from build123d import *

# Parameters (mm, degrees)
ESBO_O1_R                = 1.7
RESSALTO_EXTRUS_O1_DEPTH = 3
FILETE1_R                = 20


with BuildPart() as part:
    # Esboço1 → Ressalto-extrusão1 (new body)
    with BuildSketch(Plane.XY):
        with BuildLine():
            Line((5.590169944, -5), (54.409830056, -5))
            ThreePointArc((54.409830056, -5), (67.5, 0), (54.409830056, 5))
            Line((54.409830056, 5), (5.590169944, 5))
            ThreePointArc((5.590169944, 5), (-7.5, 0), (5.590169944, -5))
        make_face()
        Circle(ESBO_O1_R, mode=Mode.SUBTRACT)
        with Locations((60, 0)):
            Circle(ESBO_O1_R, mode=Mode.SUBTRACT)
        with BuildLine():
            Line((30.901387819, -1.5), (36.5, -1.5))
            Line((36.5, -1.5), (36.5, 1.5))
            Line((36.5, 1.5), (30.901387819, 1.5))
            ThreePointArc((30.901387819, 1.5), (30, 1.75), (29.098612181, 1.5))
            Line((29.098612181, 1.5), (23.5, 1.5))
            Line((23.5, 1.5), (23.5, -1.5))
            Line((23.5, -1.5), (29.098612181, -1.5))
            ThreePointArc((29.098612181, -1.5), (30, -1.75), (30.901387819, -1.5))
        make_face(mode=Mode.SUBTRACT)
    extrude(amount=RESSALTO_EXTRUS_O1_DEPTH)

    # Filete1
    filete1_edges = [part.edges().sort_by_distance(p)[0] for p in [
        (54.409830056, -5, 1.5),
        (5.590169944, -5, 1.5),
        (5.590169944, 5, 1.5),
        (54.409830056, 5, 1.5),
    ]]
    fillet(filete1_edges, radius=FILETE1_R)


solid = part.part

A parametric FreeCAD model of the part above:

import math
import FreeCAD as App
import Part
import Sketcher
from FreeCAD import Vector
Q = App.Units.Quantity


def edges_at(feature, points):
    """Names of the edges that pass closest to the given points."""
    edges = feature.Shape.Edges
    near = lambda p: min(range(len(edges)), key=lambda i: edges[i].distToShape(Part.Vertex(*p))[0])
    return sorted({f"Edge{near(p) + 1}" for p in points})

doc = App.newDocument("Part")
body = doc.addObject("PartDesign::Body", "Body")

sketch1 = body.newObject("Sketcher::SketchObject", "Sketch")
sketch1.AttachmentSupport = (doc.getObject("XY_Plane"), [""])
sketch1.MapMode = "FlatFace"
sketch1.addGeometry(Part.LineSegment(Vector(5.59017, -5, 0), Vector(54.40983, -5, 0)), False)
sketch1.addGeometry(Part.ArcOfCircle(Part.Circle(Vector(60, 0, 0), Vector(0, 0, 1), 7.5), math.radians(-138.189685), math.radians(138.189685)), False)
sketch1.addGeometry(Part.LineSegment(Vector(54.40983, 5, 0), Vector(5.59017, 5, 0)), False)
sketch1.addGeometry(Part.ArcOfCircle(Part.Circle(Vector(0, 0, 0), Vector(0, 0, 1), 7.5), math.radians(41.810315), math.radians(318.189685)), False)
sketch1.addGeometry(Part.Circle(Vector(0, 0, 0), Vector(0, 0, 1), 1.7), False)
sketch1.addGeometry(Part.LineSegment(Vector(36.5, -1.5, 0), Vector(30.901388, -1.5, 0)), False)
sketch1.addGeometry(Part.ArcOfCircle(Part.Circle(Vector(30, 0, 0), Vector(0, 0, 1), 1.75), math.radians(-121.002719), math.radians(-58.997281)), False)
sketch1.addGeometry(Part.LineSegment(Vector(29.098612, -1.5, 0), Vector(23.5, -1.5, 0)), False)
sketch1.addGeometry(Part.LineSegment(Vector(23.5, -1.5, 0), Vector(23.5, 1.5, 0)), False)
sketch1.addGeometry(Part.LineSegment(Vector(23.5, 1.5, 0), Vector(29.098612, 1.5, 0)), False)
sketch1.addGeometry(Part.ArcOfCircle(Part.Circle(Vector(30, 0, 0), Vector(0, 0, 1), 1.75), math.radians(58.997281), math.radians(121.002719)), False)
sketch1.addGeometry(Part.LineSegment(Vector(30.901388, 1.5, 0), Vector(36.5, 1.5, 0)), False)
sketch1.addGeometry(Part.LineSegment(Vector(36.5, 1.5, 0), Vector(36.5, -1.5, 0)), False)
sketch1.addGeometry(Part.Circle(Vector(60, 0, 0), Vector(0, 0, 1), 1.7), False)
sketch1.addConstraint(Sketcher.Constraint("Coincident", 0, 2, 1, 1))
sketch1.addConstraint(Sketcher.Constraint("Coincident", 1, 2, 2, 1))
sketch1.addConstraint(Sketcher.Constraint("Coincident", 2, 2, 3, 1))
sketch1.addConstraint(Sketcher.Constraint("Coincident", 3, 2, 0, 1))
sketch1.addConstraint(Sketcher.Constraint("Coincident", 5, 2, 6, 2))
sketch1.addConstraint(Sketcher.Constraint("Coincident", 6, 1, 7, 1))
sketch1.addConstraint(Sketcher.Constraint("Coincident", 7, 2, 8, 1))
sketch1.addConstraint(Sketcher.Constraint("Coincident", 8, 2, 9, 1))
sketch1.addConstraint(Sketcher.Constraint("Coincident", 9, 2, 10, 2))
sketch1.addConstraint(Sketcher.Constraint("Coincident", 10, 1, 11, 1))
sketch1.addConstraint(Sketcher.Constraint("Coincident", 11, 2, 12, 1))
sketch1.addConstraint(Sketcher.Constraint("Coincident", 12, 2, 5, 1))
sketch1.addConstraint(Sketcher.Constraint("Horizontal", 0))
sketch1.addConstraint(Sketcher.Constraint("Horizontal", 2))
sketch1.addConstraint(Sketcher.Constraint("Horizontal", 5))
sketch1.addConstraint(Sketcher.Constraint("Horizontal", 7))
sketch1.addConstraint(Sketcher.Constraint("Vertical", 8))
sketch1.addConstraint(Sketcher.Constraint("Horizontal", 9))
sketch1.addConstraint(Sketcher.Constraint("Horizontal", 11))
sketch1.addConstraint(Sketcher.Constraint("Vertical", 12))
sketch1.addConstraint(Sketcher.Constraint("Coincident", 3, 3, -1, 1))
sketch1.addConstraint(Sketcher.Constraint("Coincident", 4, 3, -1, 1))
sketch1.addConstraint(Sketcher.Constraint("Coincident", 10, 3, 6, 3))
sketch1.addConstraint(Sketcher.Constraint("Coincident", 13, 3, 1, 3))
sketch1.addConstraint(Sketcher.Constraint("Equal", 1, 3))
sketch1.addConstraint(Sketcher.Constraint("Equal", 6, 10))
sketch1.addConstraint(Sketcher.Constraint("Equal", 4, 13))
sketch1.addConstraint(Sketcher.Constraint("Symmetric", 0, 2, 1, 2, -1))
sketch1.addConstraint(Sketcher.Constraint("Symmetric", 6, 1, 9, 2, -1))
sketch1.addConstraint(Sketcher.Constraint("Horizontal", 5, 2, 6, 1))
sketch1.addConstraint(Sketcher.Constraint("Horizontal", 9, 2, 10, 1))
sketch1.addConstraint(Sketcher.Constraint("Equal", 5, 7))
sketch1.addConstraint(Sketcher.Constraint("Diameter", 4, Q("3.4 mm")))
sketch1.addConstraint(Sketcher.Constraint("Radius", 1, Q("7.5 mm")))
sketch1.addConstraint(Sketcher.Constraint("DistanceY", 8, 1, 8, 2, Q("3 mm")))
sketch1.addConstraint(Sketcher.Constraint("Radius", 6, Q("1.75 mm")))
sketch1.addConstraint(Sketcher.Constraint("DistanceX", -1, 1, 1, 3, Q("60 mm")))
sketch1.addConstraint(Sketcher.Constraint("DistanceX", -1, 1, 6, 3, Q("30 mm")))
sketch1.addConstraint(Sketcher.Constraint("DistanceY", 0, 2, -1, 1, Q("5 mm")))
sketch1.addConstraint(Sketcher.Constraint("DistanceX", -1, 1, 7, 2, Q("23.5 mm")))
pad1 = body.newObject("PartDesign::Pad", "Pad")
pad1.Profile = sketch1
pad1.Length = 3
doc.recompute()

fillet = body.newObject("PartDesign::Fillet", "Fillet")
fillet.Base = (pad1, edges_at(pad1, [
    (54.41, -5, 1.5),
    (5.59, -5, 1.5),
    (5.59, 5, 1.5),
    (54.41, 5, 1.5),
]))
fillet.Radius = 20

doc.recompute()
